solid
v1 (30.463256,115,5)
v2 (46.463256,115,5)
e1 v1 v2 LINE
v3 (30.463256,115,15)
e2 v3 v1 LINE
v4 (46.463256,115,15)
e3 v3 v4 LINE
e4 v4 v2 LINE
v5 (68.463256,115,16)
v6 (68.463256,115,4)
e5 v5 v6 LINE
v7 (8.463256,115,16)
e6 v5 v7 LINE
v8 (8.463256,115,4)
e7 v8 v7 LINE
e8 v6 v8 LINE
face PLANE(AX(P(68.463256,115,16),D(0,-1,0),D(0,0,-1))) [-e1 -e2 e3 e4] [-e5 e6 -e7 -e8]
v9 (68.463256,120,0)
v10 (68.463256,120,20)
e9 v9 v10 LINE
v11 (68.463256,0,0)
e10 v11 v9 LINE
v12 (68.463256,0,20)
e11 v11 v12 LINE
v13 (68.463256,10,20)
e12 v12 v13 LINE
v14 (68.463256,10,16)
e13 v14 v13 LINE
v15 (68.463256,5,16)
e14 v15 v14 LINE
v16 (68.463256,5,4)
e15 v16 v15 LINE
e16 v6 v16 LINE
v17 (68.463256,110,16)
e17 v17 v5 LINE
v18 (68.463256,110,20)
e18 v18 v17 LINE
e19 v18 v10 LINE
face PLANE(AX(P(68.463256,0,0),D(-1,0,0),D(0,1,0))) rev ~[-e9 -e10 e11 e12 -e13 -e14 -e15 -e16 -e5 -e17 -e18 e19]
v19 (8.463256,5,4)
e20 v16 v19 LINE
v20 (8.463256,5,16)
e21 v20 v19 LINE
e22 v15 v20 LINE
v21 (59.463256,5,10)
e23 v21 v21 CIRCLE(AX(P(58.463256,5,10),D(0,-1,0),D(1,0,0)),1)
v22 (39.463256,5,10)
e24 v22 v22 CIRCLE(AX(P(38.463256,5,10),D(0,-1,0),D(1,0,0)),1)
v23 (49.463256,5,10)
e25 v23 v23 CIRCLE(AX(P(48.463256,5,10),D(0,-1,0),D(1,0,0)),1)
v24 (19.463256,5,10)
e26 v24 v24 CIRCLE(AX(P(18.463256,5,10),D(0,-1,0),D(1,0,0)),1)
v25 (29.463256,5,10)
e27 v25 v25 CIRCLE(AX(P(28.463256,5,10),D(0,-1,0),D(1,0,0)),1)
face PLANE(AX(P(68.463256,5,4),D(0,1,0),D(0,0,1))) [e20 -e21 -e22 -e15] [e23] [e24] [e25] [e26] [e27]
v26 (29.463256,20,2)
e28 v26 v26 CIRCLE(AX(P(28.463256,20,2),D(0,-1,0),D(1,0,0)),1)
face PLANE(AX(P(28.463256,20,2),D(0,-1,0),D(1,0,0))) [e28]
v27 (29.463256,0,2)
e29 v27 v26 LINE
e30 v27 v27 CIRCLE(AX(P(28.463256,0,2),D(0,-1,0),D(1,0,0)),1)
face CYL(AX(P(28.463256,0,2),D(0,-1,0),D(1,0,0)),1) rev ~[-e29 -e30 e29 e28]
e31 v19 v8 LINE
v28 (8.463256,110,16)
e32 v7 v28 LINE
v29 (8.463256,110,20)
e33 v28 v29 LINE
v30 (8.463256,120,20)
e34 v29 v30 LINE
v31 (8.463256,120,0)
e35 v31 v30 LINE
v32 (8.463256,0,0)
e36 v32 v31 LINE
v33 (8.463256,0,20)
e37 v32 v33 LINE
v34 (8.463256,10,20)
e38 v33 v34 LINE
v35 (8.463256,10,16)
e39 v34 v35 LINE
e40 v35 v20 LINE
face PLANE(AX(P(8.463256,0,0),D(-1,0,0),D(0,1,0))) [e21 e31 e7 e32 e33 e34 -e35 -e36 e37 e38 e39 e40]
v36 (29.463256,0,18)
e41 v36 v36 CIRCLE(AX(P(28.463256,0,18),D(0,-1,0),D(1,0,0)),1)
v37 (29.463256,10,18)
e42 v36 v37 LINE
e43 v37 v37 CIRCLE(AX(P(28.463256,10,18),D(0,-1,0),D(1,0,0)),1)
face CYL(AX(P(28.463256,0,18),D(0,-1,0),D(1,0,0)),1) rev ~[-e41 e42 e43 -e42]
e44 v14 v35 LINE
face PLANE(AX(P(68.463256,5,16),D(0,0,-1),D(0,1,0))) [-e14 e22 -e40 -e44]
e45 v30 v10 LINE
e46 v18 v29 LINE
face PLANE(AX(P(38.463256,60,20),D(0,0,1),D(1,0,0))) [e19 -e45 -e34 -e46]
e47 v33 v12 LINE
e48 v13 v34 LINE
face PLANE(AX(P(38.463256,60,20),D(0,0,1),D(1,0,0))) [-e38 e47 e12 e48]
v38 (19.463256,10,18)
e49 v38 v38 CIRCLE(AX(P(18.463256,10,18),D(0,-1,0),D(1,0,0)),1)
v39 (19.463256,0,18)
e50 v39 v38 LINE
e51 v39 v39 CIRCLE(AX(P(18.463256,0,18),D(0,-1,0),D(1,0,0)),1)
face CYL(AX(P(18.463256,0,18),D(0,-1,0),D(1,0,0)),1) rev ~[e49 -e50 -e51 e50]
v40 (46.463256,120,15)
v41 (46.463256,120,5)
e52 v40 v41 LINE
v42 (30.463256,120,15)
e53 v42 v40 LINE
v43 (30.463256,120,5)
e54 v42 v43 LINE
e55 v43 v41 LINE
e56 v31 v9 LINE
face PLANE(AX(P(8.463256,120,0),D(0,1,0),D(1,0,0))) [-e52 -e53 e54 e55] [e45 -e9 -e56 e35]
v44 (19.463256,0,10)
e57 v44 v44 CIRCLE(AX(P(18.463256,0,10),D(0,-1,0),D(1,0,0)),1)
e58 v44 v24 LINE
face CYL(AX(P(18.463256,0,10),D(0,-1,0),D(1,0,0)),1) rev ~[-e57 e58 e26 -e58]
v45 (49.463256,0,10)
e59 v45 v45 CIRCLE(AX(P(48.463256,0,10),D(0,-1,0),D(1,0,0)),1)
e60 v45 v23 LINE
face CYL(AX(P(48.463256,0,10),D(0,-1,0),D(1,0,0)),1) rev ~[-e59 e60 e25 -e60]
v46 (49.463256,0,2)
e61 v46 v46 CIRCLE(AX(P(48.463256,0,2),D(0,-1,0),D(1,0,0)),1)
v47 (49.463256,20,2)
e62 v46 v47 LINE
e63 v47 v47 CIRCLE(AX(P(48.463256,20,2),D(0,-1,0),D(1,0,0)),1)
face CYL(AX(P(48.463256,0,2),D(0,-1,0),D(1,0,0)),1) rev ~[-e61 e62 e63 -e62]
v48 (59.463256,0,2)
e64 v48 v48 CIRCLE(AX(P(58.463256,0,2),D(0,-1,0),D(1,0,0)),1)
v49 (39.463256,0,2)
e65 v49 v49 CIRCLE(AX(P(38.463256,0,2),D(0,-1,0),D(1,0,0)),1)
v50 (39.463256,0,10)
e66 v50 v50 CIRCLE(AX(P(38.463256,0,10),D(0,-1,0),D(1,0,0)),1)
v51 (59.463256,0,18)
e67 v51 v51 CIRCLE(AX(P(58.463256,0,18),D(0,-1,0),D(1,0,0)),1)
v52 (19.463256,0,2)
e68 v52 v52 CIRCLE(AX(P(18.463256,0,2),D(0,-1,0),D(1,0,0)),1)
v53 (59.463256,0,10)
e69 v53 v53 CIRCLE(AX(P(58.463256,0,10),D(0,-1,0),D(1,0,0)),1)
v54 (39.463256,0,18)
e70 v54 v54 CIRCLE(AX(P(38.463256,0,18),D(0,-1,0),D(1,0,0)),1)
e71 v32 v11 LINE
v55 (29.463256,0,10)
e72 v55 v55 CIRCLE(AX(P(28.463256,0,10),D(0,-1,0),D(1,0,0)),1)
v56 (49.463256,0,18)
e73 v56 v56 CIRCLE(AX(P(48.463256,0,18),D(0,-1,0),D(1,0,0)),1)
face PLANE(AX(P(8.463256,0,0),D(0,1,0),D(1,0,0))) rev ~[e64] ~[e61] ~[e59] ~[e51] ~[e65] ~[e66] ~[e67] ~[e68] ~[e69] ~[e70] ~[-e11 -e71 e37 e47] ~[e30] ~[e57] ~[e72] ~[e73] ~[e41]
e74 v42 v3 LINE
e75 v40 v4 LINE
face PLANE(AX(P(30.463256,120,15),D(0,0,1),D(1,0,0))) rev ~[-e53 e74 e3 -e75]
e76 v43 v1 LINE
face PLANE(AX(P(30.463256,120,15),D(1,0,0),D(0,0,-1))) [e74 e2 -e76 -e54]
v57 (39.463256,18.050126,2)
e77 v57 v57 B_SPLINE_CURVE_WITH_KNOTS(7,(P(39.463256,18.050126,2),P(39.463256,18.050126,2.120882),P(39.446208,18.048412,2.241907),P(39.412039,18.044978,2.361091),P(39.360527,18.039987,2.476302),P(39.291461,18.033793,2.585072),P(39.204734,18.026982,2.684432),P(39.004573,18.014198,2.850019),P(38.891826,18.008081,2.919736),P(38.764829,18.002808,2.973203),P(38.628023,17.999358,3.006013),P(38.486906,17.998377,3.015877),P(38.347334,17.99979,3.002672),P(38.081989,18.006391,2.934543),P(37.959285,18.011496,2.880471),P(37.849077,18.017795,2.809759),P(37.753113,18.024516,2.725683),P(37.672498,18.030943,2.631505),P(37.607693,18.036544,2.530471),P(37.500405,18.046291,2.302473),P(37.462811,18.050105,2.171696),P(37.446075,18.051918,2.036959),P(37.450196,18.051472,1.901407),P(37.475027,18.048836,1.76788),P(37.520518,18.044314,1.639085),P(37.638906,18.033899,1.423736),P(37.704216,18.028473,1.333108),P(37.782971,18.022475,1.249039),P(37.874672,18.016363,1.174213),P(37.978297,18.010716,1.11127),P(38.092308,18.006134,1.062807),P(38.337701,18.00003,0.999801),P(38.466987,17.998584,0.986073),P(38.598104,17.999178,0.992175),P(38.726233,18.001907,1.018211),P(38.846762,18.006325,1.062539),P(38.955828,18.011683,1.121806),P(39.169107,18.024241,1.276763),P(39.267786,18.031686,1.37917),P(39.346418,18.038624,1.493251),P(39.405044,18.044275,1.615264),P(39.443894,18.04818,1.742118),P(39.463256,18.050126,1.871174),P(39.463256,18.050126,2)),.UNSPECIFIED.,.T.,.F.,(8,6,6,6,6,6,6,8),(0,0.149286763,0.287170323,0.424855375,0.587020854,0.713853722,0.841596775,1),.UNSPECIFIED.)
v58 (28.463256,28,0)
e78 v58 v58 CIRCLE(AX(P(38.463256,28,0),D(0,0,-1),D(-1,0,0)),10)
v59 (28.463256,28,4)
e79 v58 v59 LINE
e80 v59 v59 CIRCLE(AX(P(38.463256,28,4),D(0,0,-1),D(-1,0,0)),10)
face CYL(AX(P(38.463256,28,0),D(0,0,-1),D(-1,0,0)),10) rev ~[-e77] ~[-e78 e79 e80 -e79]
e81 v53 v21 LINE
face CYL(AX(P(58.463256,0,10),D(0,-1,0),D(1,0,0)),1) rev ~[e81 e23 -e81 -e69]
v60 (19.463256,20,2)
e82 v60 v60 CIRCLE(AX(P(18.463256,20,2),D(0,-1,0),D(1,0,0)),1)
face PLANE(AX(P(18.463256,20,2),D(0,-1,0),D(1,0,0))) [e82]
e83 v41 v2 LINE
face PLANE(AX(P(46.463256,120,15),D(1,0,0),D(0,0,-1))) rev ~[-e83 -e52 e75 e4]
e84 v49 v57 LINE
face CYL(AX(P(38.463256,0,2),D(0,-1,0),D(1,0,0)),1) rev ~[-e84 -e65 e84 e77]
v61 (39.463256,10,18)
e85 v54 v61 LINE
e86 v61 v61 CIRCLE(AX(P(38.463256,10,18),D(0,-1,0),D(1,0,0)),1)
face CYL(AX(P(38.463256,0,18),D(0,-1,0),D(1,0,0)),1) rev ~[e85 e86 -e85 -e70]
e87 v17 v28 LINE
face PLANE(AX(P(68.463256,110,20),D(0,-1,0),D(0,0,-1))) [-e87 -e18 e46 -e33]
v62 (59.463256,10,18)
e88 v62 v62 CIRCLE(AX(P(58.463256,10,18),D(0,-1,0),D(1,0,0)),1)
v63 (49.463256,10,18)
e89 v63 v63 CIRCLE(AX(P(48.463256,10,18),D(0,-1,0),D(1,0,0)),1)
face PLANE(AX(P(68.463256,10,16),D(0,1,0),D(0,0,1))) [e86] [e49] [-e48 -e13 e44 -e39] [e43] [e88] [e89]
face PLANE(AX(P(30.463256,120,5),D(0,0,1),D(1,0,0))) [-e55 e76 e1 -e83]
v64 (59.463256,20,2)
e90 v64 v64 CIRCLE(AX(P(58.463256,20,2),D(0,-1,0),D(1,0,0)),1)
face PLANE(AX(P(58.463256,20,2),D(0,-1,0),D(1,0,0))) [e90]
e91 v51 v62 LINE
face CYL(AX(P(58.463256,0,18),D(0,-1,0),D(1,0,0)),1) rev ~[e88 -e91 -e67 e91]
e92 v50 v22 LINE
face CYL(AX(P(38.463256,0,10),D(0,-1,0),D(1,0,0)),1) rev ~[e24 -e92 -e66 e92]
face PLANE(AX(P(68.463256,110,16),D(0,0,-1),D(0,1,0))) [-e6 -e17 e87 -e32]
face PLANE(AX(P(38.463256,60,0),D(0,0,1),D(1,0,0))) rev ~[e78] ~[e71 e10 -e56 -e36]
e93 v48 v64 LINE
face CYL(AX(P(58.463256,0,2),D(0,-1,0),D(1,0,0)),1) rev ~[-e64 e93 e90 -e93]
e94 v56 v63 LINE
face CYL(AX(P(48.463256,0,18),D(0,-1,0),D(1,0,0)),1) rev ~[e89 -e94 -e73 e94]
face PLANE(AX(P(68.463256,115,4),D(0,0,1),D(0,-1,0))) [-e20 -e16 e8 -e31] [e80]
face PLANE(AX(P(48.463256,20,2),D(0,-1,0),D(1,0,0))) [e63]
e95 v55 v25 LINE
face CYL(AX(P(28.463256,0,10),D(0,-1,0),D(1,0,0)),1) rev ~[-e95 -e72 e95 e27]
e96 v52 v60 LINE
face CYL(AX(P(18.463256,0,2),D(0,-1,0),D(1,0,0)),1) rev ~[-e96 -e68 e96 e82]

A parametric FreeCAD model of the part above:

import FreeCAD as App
import Part
import Sketcher
from FreeCAD import Vector
Q = App.Units.Quantity

doc = App.newDocument("Part")
body = doc.addObject("PartDesign::Body", "Body")

sketch1 = body.newObject("Sketcher::SketchObject", "Sketch")
sketch1.AttachmentSupport = (doc.getObject("XY_Plane"), [""])
sketch1.MapMode = "FlatFace"
sketch1.addGeometry([
    Part.LineSegment(Vector(8, 120, 0), Vector(8, 0, 0)),
    Part.LineSegment(Vector(8, 0, 0), Vector(68, 0, 0)),
    Part.LineSegment(Vector(68, 0, 0), Vector(68, 120, 0)),
    Part.LineSegment(Vector(68, 120, 0), Vector(8, 120, 0)),
], False)
sketch1.addConstraint([
    Sketcher.Constraint("Coincident", 0, 2, 1, 1),
    Sketcher.Constraint("Coincident", 1, 2, 2, 1),
    Sketcher.Constraint("Coincident", 2, 2, 3, 1),
    Sketcher.Constraint("Coincident", 3, 2, 0, 1),
    Sketcher.Constraint("Vertical", 0),
    Sketcher.Constraint("Horizontal", 1),
    Sketcher.Constraint("Vertical", 2),
    Sketcher.Constraint("Horizontal", 3),
    Sketcher.Constraint("PointOnObject", 0, 2, -1),
    Sketcher.Constraint("DistanceX", 1, 1, 1, 2, Q("60 mm")),
    Sketcher.Constraint("DistanceY", 0, 2, 0, 1, Q("120 mm")),
    Sketcher.Constraint("DistanceX", -1, 1, 0, 2, Q("8.463256 mm")),
])
pad1 = body.newObject("PartDesign::Pad", "Pad")
pad1.Profile = sketch1
pad1.Length = 20

sketch2 = body.newObject("Sketcher::SketchObject", "Sketch001")
sketch2.AttachmentSupport = (doc.getObject("YZ_Plane"), [""])
sketch2.MapMode = "FlatFace"
sketch2.AttachmentOffset = App.Placement(Vector(0, 0, 68.463256), App.Rotation())
sketch2.addGeometry([
    Part.LineSegment(Vector(110, 16, 0), Vector(110, 20, 0)),
    Part.LineSegment(Vector(110, 20, 0), Vector(10, 20, 0)),
    Part.LineSegment(Vector(10, 20, 0), Vector(10, 16, 0)),
    Part.LineSegment(Vector(10, 16, 0), Vector(5, 16, 0)),
    Part.LineSegment(Vector(5, 16, 0), Vector(5, 4, 0)),
    Part.LineSegment(Vector(5, 4, 0), Vector(115, 4, 0)),
    Part.LineSegment(Vector(115, 4, 0), Vector(115, 16, 0)),
    Part.LineSegment(Vector(115, 16, 0), Vector(110, 16, 0)),
], False)
sketch2.addConstraint([
    Sketcher.Constraint("Coincident", 0, 2, 1, 1),
    Sketcher.Constraint("Coincident", 1, 2, 2, 1),
    Sketcher.Constraint("Coincident", 2, 2, 3, 1),
    Sketcher.Constraint("Coincident", 3, 2, 4, 1),
    Sketcher.Constraint("Coincident", 4, 2, 5, 1),
    Sketcher.Constraint("Coincident", 5, 2, 6, 1),
    Sketcher.Constraint("Coincident", 6, 2, 7, 1),
    Sketcher.Constraint("Coincident", 7, 2, 0, 1),
    Sketcher.Constraint("Vertical", 0),
    Sketcher.Constraint("Horizontal", 1),
    Sketcher.Constraint("Vertical", 2),
    Sketcher.Constraint("Horizontal", 3),
    Sketcher.Constraint("Vertical", 4),
    Sketcher.Constraint("Horizontal", 5),
    Sketcher.Constraint("Vertical", 6),
    Sketcher.Constraint("Horizontal", 7),
    Sketcher.Constraint("Horizontal", 3, 2, 6, 2),
    Sketcher.Constraint("Equal", 3, 7),
    Sketcher.Constraint("DistanceX", 1, 2, 1, 1, Q("100 mm")),
    Sketcher.Constraint("DistanceX", 3, 2, 3, 1, Q("5 mm")),
    Sketcher.Constraint("DistanceY", 0, 1, 0, 2, Q("4 mm")),
    Sketcher.Constraint("DistanceY", 4, 2, 4, 1, Q("12 mm")),
    Sketcher.Constraint("DistanceX", -1, 1, 0, 2, Q("110 mm")),
    Sketcher.Constraint("DistanceY", -1, 1, 0, 2, Q("20 mm")),
])
pocket1 = body.newObject("PartDesign::Pocket", "Pocket")
pocket1.Profile = sketch2
pocket1.Type = "ThroughAll"

sketch3 = body.newObject("Sketcher::SketchObject", "Sketch002")
sketch3.AttachmentSupport = (doc.getObject("XZ_Plane"), [""])
sketch3.MapMode = "FlatFace"
sketch3.AttachmentOffset = App.Placement(Vector(0, 0, -120), App.Rotation())
sketch3.addGeometry([
    Part.LineSegment(Vector(30, 5, 0), Vector(30, 15, 0)),
    Part.LineSegment(Vector(30, 15, 0), Vector(46, 15, 0)),
    Part.LineSegment(Vector(46, 15, 0), Vector(46, 5, 0)),
    Part.LineSegment(Vector(46, 5, 0), Vector(30, 5, 0)),
], False)
sketch3.addConstraint([
    Sketcher.Constraint("Coincident", 0, 2, 1, 1),
    Sketcher.Constraint("Coincident", 1, 2, 2, 1),
    Sketcher.Constraint("Coincident", 2, 2, 3, 1),
    Sketcher.Constraint("Coincident", 3, 2, 0, 1),
    Sketcher.Constraint("Vertical", 0),
    Sketcher.Constraint("Horizontal", 1),
    Sketcher.Constraint("Vertical", 2),
    Sketcher.Constraint("Horizontal", 3),
    Sketcher.Constraint("DistanceX", 1, 1, 1, 2, Q("16 mm")),
    Sketcher.Constraint("DistanceY", 0, 1, 0, 2, Q("10 mm")),
    Sketcher.Constraint("DistanceY", -1, 1, 0, 2, Q("15 mm")),
    Sketcher.Constraint("DistanceX", -1, 1, 0, 2, Q("30.463256 mm")),
])
pocket2 = body.newObject("PartDesign::Pocket", "Pocket001")
pocket2.Profile = sketch3
pocket2.Length = 5
pocket2.Reversed = True

sketch4 = body.newObject("Sketcher::SketchObject", "Sketch003")
sketch4.AttachmentSupport = (doc.getObject("XY_Plane"), [""])
sketch4.MapMode = "FlatFace"
sketch4.addGeometry(Part.Circle(Vector(38, 28, 0), Vector(0, 0, 1), 10), False)
sketch4.addConstraint([
    Sketcher.Constraint("Diameter", 0, Q("20 mm")),
    Sketcher.Constraint("DistanceY", -1, 1, 0, 3, Q("28 mm")),
    Sketcher.Constraint("DistanceX", -1, 1, 0, 3, Q("38.463256 mm")),
])
pocket3 = body.newObject("PartDesign::Pocket", "Pocket002")
pocket3.Profile = sketch4
pocket3.Type = "ThroughAll"
pocket3.Reversed = True

sketch5 = body.newObject("Sketcher::SketchObject", "Sketch004")
sketch5.AttachmentSupport = (doc.getObject("XZ_Plane"), [""])
sketch5.MapMode = "FlatFace"
sketch5.addGeometry([
    Part.Circle(Vector(38.5, 18, 0), Vector(0, 0, 1), 1),
    Part.Circle(Vector(38.5, 2, 0), Vector(0, 0, 1), 1),
    Part.Circle(Vector(38.5, 10, 0), Vector(0, 0, 1), 1),
], False)
sketch5.addConstraint([
    Sketcher.Constraint("Equal", 0, 1),
    Sketcher.Constraint("Equal", 1, 2),
    Sketcher.Constraint("Vertical", 0, 3, 1, 3),
    Sketcher.Constraint("Vertical", 1, 3, 2, 3),
    Sketcher.Constraint("Diameter", 0, Q("2 mm")),
    Sketcher.Constraint("DistanceY", -1, 1, 0, 3, Q("18 mm")),
    Sketcher.Constraint("DistanceY", -1, 1, 1, 3, Q("2 mm")),
    Sketcher.Constraint("DistanceY", -1, 1, 2, 3, Q("10 mm")),
    Sketcher.Constraint("DistanceX", -1, 1, 0, 3, Q("38.463256 mm")),
])
pocket4 = body.newObject("PartDesign::Pocket", "Pocket003")
pocket4.Profile = sketch5
pocket4.Length = 20
doc.recompute()

linearpattern = body.newObject("PartDesign::LinearPattern", "LinearPattern")
linearpattern.Originals = [pocket4]
linearpattern.Direction = (doc.getObject("X_Axis"), [""])
linearpattern.Mode = "offset"
linearpattern.Offset = 10
linearpattern.Occurrences = 3
body.Tip = linearpattern
doc.recompute()

linearpattern2 = body.newObject("PartDesign::LinearPattern", "LinearPattern001")
linearpattern2.Originals = [pocket4]
linearpattern2.Direction = (doc.getObject("X_Axis"), [""])
linearpattern2.Mode = "offset"
linearpattern2.Offset = 10
linearpattern2.Occurrences = 3
linearpattern2.Reversed = True
body.Tip = linearpattern2

doc.recompute()
